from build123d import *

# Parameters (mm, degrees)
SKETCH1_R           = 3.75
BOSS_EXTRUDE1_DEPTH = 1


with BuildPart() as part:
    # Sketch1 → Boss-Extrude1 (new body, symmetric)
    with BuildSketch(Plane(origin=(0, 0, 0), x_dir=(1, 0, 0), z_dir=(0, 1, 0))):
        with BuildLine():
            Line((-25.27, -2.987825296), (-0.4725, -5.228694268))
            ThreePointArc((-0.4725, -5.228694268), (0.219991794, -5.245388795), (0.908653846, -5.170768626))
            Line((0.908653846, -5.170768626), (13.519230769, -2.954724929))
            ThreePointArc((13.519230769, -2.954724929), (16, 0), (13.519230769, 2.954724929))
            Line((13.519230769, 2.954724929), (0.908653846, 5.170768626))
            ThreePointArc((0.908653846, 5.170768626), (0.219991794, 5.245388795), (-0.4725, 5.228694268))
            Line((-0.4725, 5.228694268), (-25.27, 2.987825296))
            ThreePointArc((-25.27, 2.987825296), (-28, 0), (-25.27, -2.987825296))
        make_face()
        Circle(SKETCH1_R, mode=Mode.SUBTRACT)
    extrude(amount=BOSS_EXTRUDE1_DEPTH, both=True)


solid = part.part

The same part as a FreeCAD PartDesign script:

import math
import FreeCAD as App
import Part
import Sketcher
Q = App.Units.Quantity

doc = App.newDocument("Part")
body = doc.addObject("PartDesign::Body", "Body")

# Sketch on XZ plane
sketch1 = doc.addObject("Sketcher::SketchObject", "Sketch")
body.addObject(sketch1)
sketch1.AttachmentSupport = (doc.XZ_Plane, [""])
sketch1.MapMode = "FlatFace"
sketch1.addGeometry([
    Part.LineSegment(App.Vector(-25.3, 3, 0), App.Vector(-0.5, 5.2, 0)),  # 0
    Part.ArcOfCircle(Part.Circle(App.Vector(0, 0, 0), App.Vector(0, 0, 1), 5.2), math.radians(80.03), math.radians(95.16)),  # 1
    Part.LineSegment(App.Vector(0.9, 5.2, 0), App.Vector(13.5, 3, 0)),  # 2
    Part.ArcOfCircle(Part.Circle(App.Vector(13, 0, 0), App.Vector(0, 0, 1), 3), math.radians(-80), math.radians(80)),  # 3
    Part.LineSegment(App.Vector(13.5, -3, 0), App.Vector(0.9, -5.2, 0)),  # 4
    Part.ArcOfCircle(Part.Circle(App.Vector(0, 0, 0), App.Vector(0, 0, 1), 5.2), math.radians(-95.16), math.radians(-80.03)),  # 5
    Part.LineSegment(App.Vector(-0.5, -5.2, 0), App.Vector(-25.3, -3, 0)),  # 6
    Part.ArcOfCircle(Part.Circle(App.Vector(-25, 0, 0), App.Vector(0, 0, 1), 3), math.radians(95), math.radians(265)),  # 7
    Part.Circle(App.Vector(0, 0, 0), App.Vector(0, 0, 1), 3.8),  # 8
], False)
sketch1.addConstraint([
    Sketcher.Constraint("Tangent", 0, 2, 1, 2),
    Sketcher.Constraint("Tangent", 1, 1, 2, 1),
    Sketcher.Constraint("Tangent", 2, 2, 3, 2),
    Sketcher.Constraint("Tangent", 3, 1, 4, 1),
    Sketcher.Constraint("Tangent", 4, 2, 5, 2),
    Sketcher.Constraint("Tangent", 5, 1, 6, 1),
    Sketcher.Constraint("Tangent", 6, 2, 7, 2),
    Sketcher.Constraint("Tangent", 7, 1, 0, 1),
    Sketcher.Constraint("Coincident", 1, 3, -1, 1),
    Sketcher.Constraint("Coincident", 5, 3, -1, 1),
    Sketcher.Constraint("Coincident", 8, 3, -1, 1),
    Sketcher.Constraint("Equal", 1, 5),
    Sketcher.Constraint("Equal", 3, 7),
    Sketcher.Constraint("PointOnObject", 3, 3, -1),
    Sketcher.Constraint("PointOnObject", 7, 3, -1),
    Sketcher.Constraint("Radius", 3, Q("3 mm")),
    Sketcher.Constraint("Diameter", 8, Q("7.5 mm")),
    Sketcher.Constraint("Radius", 1, Q("5.25 mm")),
    Sketcher.Constraint("DistanceX", -1, 1, 3, 3, Q("13 mm")),
    Sketcher.Constraint("DistanceX", 7, 3, -1, 1, Q("25 mm")),
])
pad1 = doc.addObject("PartDesign::Pad", "Pad")
body.addObject(pad1)
pad1.Profile = sketch1
pad1.Length = 2
pad1.Midplane = True

doc.recompute()
